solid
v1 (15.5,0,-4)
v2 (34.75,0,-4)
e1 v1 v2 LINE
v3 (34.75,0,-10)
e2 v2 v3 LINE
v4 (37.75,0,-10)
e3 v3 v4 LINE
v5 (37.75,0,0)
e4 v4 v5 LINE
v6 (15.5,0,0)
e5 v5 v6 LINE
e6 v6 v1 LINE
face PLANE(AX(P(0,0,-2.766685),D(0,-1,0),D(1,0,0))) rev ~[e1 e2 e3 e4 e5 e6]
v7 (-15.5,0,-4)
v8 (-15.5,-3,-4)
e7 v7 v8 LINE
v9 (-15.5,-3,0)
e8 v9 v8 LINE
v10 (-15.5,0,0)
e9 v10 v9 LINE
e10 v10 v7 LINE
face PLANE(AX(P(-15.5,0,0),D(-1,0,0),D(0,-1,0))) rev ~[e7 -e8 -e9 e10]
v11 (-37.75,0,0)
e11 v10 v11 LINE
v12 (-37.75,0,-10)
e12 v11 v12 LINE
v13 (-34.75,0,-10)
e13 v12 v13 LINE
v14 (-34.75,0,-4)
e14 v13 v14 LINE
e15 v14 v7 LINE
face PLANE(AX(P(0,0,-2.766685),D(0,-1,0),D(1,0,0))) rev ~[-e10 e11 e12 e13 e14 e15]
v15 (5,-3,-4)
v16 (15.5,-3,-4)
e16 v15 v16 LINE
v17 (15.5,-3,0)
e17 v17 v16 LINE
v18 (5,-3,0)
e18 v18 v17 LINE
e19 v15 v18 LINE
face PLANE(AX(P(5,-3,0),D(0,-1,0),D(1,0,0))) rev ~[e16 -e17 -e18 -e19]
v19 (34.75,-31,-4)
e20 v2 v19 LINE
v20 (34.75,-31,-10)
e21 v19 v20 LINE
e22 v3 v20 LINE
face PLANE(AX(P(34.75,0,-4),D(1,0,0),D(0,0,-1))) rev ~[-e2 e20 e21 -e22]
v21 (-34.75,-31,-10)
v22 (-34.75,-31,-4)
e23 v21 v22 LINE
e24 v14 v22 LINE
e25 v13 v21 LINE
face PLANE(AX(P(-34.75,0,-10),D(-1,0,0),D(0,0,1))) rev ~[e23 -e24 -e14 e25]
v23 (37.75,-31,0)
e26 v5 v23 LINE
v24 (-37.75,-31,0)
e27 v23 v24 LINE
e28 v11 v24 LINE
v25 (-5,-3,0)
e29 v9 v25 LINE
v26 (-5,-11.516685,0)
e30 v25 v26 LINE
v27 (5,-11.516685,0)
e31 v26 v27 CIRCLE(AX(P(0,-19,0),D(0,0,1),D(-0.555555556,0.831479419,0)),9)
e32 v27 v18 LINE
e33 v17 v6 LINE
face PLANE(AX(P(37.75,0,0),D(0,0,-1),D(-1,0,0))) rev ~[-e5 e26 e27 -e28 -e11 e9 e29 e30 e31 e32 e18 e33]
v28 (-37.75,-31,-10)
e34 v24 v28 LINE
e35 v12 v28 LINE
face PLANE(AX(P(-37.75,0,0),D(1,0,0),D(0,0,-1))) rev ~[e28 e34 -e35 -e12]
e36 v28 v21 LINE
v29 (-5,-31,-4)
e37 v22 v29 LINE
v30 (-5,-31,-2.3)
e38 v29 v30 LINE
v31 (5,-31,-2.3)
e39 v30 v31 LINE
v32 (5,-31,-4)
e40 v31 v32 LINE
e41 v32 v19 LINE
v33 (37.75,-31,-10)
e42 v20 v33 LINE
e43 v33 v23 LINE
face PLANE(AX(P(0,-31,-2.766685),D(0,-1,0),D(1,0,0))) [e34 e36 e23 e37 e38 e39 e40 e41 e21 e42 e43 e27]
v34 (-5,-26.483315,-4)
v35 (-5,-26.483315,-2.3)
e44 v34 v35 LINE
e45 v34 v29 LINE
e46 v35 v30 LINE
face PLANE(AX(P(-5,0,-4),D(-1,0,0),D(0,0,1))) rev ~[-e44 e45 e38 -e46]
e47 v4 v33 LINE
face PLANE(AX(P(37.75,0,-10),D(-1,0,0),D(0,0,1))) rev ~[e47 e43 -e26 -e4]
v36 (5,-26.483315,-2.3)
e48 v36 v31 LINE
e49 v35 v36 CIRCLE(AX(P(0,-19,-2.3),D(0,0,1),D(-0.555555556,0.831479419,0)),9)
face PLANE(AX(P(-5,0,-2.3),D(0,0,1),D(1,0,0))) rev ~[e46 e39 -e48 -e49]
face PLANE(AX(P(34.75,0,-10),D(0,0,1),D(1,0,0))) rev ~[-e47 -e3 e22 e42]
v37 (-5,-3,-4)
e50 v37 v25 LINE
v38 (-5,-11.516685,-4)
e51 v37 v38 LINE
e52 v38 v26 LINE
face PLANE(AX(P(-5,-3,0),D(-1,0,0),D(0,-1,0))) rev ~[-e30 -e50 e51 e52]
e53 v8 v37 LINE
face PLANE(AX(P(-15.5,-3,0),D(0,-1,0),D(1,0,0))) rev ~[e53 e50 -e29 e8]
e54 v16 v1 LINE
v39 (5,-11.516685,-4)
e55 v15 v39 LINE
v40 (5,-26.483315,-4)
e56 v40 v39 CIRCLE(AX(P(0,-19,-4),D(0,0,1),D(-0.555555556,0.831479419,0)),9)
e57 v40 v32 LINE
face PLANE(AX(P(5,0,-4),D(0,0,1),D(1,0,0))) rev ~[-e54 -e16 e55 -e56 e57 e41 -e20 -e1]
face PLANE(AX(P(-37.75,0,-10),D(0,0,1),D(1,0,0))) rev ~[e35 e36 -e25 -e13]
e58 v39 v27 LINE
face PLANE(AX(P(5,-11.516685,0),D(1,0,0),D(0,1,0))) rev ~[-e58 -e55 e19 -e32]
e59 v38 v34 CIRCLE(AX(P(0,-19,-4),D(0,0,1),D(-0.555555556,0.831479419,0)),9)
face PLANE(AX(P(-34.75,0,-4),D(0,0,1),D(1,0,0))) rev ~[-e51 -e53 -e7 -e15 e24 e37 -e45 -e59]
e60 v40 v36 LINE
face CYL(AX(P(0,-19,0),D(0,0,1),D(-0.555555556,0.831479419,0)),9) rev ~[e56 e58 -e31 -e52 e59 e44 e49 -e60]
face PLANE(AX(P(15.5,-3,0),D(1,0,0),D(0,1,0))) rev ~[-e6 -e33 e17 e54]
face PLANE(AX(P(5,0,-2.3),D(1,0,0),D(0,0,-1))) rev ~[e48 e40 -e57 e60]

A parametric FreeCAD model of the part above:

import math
import FreeCAD as App
import Part
import Sketcher

V = App.Vector

doc = App.newDocument("Part")
body = doc.addObject("PartDesign::Body", "Body")

# Sketch on XZ plane
sketch1 = doc.addObject("Sketcher::SketchObject", "Sketch")
body.addObject(sketch1)
sketch1.AttachmentSupport = (doc.XZ_Plane, [""])
sketch1.MapMode = "FlatFace"
sketch1.addGeometry(Part.LineSegment(V(37.8, 0, 0), V(-37.8, 0, 0)), False)
sketch1.addGeometry(Part.LineSegment(V(-37.8, 0, 0), V(-37.8, -10, 0)), False)
sketch1.addGeometry(Part.LineSegment(V(-37.8, -10, 0), V(-34.8, -10, 0)), False)
sketch1.addGeometry(Part.LineSegment(V(-34.8, -10, 0), V(-34.8, -4, 0)), False)
sketch1.addGeometry(Part.LineSegment(V(-34.8, -4, 0), V(-5, -4, 0)), False)
sketch1.addGeometry(Part.LineSegment(V(-5, -4, 0), V(-5, -2.3, 0)), False)
sketch1.addGeometry(Part.LineSegment(V(-5, -2.3, 0), V(5, -2.3, 0)), False)
sketch1.addGeometry(Part.LineSegment(V(5, -2.3, 0), V(5, -4, 0)), False)
sketch1.addGeometry(Part.LineSegment(V(5, -4, 0), V(34.8, -4, 0)), False)
sketch1.addGeometry(Part.LineSegment(V(34.8, -4, 0), V(34.8, -10, 0)), False)
sketch1.addGeometry(Part.LineSegment(V(34.8, -10, 0), V(37.8, -10, 0)), False)
sketch1.addGeometry(Part.LineSegment(V(37.8, -10, 0), V(37.8, 0, 0)), False)
sketch1.addConstraint(Sketcher.Constraint("Coincident", 0, 2, 1, 1))
sketch1.addConstraint(Sketcher.Constraint("Coincident", 1, 2, 2, 1))
sketch1.addConstraint(Sketcher.Constraint("Coincident", 2, 2, 3, 1))
sketch1.addConstraint(Sketcher.Constraint("Coincident", 3, 2, 4, 1))
sketch1.addConstraint(Sketcher.Constraint("Coincident", 4, 2, 5, 1))
sketch1.addConstraint(Sketcher.Constraint("Coincident", 5, 2, 6, 1))
sketch1.addConstraint(Sketcher.Constraint("Coincident", 6, 2, 7, 1))
sketch1.addConstraint(Sketcher.Constraint("Coincident", 7, 2, 8, 1))
sketch1.addConstraint(Sketcher.Constraint("Coincident", 8, 2, 9, 1))
sketch1.addConstraint(Sketcher.Constraint("Coincident", 9, 2, 10, 1))
sketch1.addConstraint(Sketcher.Constraint("Coincident", 10, 2, 11, 1))
sketch1.addConstraint(Sketcher.Constraint("Coincident", 11, 2, 0, 1))
sketch1.addConstraint(Sketcher.Constraint("Horizontal", 0))
sketch1.addConstraint(Sketcher.Constraint("Vertical", 1))
sketch1.addConstraint(Sketcher.Constraint("Horizontal", 2))
sketch1.addConstraint(Sketcher.Constraint("Vertical", 3))
sketch1.addConstraint(Sketcher.Constraint("Horizontal", 4))
sketch1.addConstraint(Sketcher.Constraint("Vertical", 5))
sketch1.addConstraint(Sketcher.Constraint("Horizontal", 6))
sketch1.addConstraint(Sketcher.Constraint("Vertical", 7))
sketch1.addConstraint(Sketcher.Constraint("Horizontal", 8))
sketch1.addConstraint(Sketcher.Constraint("Vertical", 9))
sketch1.addConstraint(Sketcher.Constraint("Horizontal", 10))
sketch1.addConstraint(Sketcher.Constraint("Vertical", 11))
sketch1.addConstraint(Sketcher.Constraint("Symmetric", 0, 2, 11, 2, -1, 1))
sketch1.addConstraint(Sketcher.Constraint("Symmetric", 4, 2, 7, 2, -2))
sketch1.addConstraint(Sketcher.Constraint("Symmetric", 2, 2, 9, 2, -2))
sketch1.addConstraint(Sketcher.Constraint("Equal", 6, 1))
sketch1.addConstraint(Sketcher.Constraint("DistanceX", 2, 1, 2, 2, 3.0))
sketch1.addConstraint(Sketcher.Constraint("DistanceX", 6, 1, 6, 2, 10.0))
sketch1.addConstraint(Sketcher.Constraint("DistanceY", 3, 1, 3, 2, 6.0))
sketch1.addConstraint(Sketcher.Constraint("DistanceX", 0, 2, 0, 1, 75.5))
sketch1.addConstraint(Sketcher.Constraint("DistanceY", 5, 1, 5, 2, 1.7))
pad1 = doc.addObject("PartDesign::Pad", "Pad")
body.addObject(pad1)
pad1.Profile = sketch1
pad1.Length = 31

# Sketch on XY plane
sketch2 = doc.addObject("Sketcher::SketchObject", "Sketch001")
body.addObject(sketch2)
sketch2.AttachmentSupport = (doc.XY_Plane, [""])
sketch2.MapMode = "FlatFace"
sketch2.addGeometry(Part.LineSegment(V(15.5, 0, 0), V(-15.5, 0, 0)), False)
sketch2.addGeometry(Part.LineSegment(V(-15.5, 0, 0), V(-15.5, -3, 0)), False)
sketch2.addGeometry(Part.LineSegment(V(-15.5, -3, 0), V(-5, -3, 0)), False)
sketch2.addGeometry(Part.LineSegment(V(-5, -3, 0), V(-5, -11.5, 0)), False)
sketch2.addGeometry(Part.ArcOfCircle(Part.Circle(V(0, -19, 0), V(0, 0, 1), 9), math.radians(124), math.radians(416)), False)
sketch2.addGeometry(Part.LineSegment(V(5, -11.5, 0), V(5, -3, 0)), False)
sketch2.addGeometry(Part.LineSegment(V(5, -3, 0), V(15.5, -3, 0)), False)
sketch2.addGeometry(Part.LineSegment(V(15.5, -3, 0), V(15.5, 0, 0)), False)
sketch2.addConstraint(Sketcher.Constraint("Coincident", 0, 2, 1, 1))
sketch2.addConstraint(Sketcher.Constraint("Coincident", 1, 2, 2, 1))
sketch2.addConstraint(Sketcher.Constraint("Coincident", 2, 2, 3, 1))
sketch2.addConstraint(Sketcher.Constraint("Coincident", 3, 2, 4, 1))
sketch2.addConstraint(Sketcher.Constraint("Coincident", 4, 2, 5, 1))
sketch2.addConstraint(Sketcher.Constraint("Coincident", 5, 2, 6, 1))
sketch2.addConstraint(Sketcher.Constraint("Coincident", 6, 2, 7, 1))
sketch2.addConstraint(Sketcher.Constraint("Coincident", 7, 2, 0, 1))
sketch2.addConstraint(Sketcher.Constraint("Horizontal", 0))
sketch2.addConstraint(Sketcher.Constraint("Vertical", 1))
sketch2.addConstraint(Sketcher.Constraint("Horizontal", 2))
sketch2.addConstraint(Sketcher.Constraint("Vertical", 3))
sketch2.addConstraint(Sketcher.Constraint("Vertical", 5))
sketch2.addConstraint(Sketcher.Constraint("Horizontal", 6))
sketch2.addConstraint(Sketcher.Constraint("Vertical", 7))
sketch2.addConstraint(Sketcher.Constraint("Symmetric", 0, 2, 7, 2, -1, 1))
sketch2.addConstraint(Sketcher.Constraint("Symmetric", 3, 2, 4, 2, -2))
sketch2.addConstraint(Sketcher.Constraint("Horizontal", 2, 2, 5, 2))
sketch2.addConstraint(Sketcher.Constraint("Radius", 4, 9.0))
sketch2.addConstraint(Sketcher.Constraint("DistanceX", 0, 2, 0, 1, 31.0))
sketch2.addConstraint(Sketcher.Constraint("DistanceY", 1, 2, 1, 1, 3.0))
sketch2.addConstraint(Sketcher.Constraint("DistanceX", 2, 1, 2, 2, 10.5))
sketch2.addConstraint(Sketcher.Constraint("DistanceY", 4, 3, -1, 1, 19.0))
pocket1 = doc.addObject("PartDesign::Pocket", "Pocket")
body.addObject(pocket1)
pocket1.Profile = sketch2
pocket1.Type = "ThroughAll"

doc.recompute()
